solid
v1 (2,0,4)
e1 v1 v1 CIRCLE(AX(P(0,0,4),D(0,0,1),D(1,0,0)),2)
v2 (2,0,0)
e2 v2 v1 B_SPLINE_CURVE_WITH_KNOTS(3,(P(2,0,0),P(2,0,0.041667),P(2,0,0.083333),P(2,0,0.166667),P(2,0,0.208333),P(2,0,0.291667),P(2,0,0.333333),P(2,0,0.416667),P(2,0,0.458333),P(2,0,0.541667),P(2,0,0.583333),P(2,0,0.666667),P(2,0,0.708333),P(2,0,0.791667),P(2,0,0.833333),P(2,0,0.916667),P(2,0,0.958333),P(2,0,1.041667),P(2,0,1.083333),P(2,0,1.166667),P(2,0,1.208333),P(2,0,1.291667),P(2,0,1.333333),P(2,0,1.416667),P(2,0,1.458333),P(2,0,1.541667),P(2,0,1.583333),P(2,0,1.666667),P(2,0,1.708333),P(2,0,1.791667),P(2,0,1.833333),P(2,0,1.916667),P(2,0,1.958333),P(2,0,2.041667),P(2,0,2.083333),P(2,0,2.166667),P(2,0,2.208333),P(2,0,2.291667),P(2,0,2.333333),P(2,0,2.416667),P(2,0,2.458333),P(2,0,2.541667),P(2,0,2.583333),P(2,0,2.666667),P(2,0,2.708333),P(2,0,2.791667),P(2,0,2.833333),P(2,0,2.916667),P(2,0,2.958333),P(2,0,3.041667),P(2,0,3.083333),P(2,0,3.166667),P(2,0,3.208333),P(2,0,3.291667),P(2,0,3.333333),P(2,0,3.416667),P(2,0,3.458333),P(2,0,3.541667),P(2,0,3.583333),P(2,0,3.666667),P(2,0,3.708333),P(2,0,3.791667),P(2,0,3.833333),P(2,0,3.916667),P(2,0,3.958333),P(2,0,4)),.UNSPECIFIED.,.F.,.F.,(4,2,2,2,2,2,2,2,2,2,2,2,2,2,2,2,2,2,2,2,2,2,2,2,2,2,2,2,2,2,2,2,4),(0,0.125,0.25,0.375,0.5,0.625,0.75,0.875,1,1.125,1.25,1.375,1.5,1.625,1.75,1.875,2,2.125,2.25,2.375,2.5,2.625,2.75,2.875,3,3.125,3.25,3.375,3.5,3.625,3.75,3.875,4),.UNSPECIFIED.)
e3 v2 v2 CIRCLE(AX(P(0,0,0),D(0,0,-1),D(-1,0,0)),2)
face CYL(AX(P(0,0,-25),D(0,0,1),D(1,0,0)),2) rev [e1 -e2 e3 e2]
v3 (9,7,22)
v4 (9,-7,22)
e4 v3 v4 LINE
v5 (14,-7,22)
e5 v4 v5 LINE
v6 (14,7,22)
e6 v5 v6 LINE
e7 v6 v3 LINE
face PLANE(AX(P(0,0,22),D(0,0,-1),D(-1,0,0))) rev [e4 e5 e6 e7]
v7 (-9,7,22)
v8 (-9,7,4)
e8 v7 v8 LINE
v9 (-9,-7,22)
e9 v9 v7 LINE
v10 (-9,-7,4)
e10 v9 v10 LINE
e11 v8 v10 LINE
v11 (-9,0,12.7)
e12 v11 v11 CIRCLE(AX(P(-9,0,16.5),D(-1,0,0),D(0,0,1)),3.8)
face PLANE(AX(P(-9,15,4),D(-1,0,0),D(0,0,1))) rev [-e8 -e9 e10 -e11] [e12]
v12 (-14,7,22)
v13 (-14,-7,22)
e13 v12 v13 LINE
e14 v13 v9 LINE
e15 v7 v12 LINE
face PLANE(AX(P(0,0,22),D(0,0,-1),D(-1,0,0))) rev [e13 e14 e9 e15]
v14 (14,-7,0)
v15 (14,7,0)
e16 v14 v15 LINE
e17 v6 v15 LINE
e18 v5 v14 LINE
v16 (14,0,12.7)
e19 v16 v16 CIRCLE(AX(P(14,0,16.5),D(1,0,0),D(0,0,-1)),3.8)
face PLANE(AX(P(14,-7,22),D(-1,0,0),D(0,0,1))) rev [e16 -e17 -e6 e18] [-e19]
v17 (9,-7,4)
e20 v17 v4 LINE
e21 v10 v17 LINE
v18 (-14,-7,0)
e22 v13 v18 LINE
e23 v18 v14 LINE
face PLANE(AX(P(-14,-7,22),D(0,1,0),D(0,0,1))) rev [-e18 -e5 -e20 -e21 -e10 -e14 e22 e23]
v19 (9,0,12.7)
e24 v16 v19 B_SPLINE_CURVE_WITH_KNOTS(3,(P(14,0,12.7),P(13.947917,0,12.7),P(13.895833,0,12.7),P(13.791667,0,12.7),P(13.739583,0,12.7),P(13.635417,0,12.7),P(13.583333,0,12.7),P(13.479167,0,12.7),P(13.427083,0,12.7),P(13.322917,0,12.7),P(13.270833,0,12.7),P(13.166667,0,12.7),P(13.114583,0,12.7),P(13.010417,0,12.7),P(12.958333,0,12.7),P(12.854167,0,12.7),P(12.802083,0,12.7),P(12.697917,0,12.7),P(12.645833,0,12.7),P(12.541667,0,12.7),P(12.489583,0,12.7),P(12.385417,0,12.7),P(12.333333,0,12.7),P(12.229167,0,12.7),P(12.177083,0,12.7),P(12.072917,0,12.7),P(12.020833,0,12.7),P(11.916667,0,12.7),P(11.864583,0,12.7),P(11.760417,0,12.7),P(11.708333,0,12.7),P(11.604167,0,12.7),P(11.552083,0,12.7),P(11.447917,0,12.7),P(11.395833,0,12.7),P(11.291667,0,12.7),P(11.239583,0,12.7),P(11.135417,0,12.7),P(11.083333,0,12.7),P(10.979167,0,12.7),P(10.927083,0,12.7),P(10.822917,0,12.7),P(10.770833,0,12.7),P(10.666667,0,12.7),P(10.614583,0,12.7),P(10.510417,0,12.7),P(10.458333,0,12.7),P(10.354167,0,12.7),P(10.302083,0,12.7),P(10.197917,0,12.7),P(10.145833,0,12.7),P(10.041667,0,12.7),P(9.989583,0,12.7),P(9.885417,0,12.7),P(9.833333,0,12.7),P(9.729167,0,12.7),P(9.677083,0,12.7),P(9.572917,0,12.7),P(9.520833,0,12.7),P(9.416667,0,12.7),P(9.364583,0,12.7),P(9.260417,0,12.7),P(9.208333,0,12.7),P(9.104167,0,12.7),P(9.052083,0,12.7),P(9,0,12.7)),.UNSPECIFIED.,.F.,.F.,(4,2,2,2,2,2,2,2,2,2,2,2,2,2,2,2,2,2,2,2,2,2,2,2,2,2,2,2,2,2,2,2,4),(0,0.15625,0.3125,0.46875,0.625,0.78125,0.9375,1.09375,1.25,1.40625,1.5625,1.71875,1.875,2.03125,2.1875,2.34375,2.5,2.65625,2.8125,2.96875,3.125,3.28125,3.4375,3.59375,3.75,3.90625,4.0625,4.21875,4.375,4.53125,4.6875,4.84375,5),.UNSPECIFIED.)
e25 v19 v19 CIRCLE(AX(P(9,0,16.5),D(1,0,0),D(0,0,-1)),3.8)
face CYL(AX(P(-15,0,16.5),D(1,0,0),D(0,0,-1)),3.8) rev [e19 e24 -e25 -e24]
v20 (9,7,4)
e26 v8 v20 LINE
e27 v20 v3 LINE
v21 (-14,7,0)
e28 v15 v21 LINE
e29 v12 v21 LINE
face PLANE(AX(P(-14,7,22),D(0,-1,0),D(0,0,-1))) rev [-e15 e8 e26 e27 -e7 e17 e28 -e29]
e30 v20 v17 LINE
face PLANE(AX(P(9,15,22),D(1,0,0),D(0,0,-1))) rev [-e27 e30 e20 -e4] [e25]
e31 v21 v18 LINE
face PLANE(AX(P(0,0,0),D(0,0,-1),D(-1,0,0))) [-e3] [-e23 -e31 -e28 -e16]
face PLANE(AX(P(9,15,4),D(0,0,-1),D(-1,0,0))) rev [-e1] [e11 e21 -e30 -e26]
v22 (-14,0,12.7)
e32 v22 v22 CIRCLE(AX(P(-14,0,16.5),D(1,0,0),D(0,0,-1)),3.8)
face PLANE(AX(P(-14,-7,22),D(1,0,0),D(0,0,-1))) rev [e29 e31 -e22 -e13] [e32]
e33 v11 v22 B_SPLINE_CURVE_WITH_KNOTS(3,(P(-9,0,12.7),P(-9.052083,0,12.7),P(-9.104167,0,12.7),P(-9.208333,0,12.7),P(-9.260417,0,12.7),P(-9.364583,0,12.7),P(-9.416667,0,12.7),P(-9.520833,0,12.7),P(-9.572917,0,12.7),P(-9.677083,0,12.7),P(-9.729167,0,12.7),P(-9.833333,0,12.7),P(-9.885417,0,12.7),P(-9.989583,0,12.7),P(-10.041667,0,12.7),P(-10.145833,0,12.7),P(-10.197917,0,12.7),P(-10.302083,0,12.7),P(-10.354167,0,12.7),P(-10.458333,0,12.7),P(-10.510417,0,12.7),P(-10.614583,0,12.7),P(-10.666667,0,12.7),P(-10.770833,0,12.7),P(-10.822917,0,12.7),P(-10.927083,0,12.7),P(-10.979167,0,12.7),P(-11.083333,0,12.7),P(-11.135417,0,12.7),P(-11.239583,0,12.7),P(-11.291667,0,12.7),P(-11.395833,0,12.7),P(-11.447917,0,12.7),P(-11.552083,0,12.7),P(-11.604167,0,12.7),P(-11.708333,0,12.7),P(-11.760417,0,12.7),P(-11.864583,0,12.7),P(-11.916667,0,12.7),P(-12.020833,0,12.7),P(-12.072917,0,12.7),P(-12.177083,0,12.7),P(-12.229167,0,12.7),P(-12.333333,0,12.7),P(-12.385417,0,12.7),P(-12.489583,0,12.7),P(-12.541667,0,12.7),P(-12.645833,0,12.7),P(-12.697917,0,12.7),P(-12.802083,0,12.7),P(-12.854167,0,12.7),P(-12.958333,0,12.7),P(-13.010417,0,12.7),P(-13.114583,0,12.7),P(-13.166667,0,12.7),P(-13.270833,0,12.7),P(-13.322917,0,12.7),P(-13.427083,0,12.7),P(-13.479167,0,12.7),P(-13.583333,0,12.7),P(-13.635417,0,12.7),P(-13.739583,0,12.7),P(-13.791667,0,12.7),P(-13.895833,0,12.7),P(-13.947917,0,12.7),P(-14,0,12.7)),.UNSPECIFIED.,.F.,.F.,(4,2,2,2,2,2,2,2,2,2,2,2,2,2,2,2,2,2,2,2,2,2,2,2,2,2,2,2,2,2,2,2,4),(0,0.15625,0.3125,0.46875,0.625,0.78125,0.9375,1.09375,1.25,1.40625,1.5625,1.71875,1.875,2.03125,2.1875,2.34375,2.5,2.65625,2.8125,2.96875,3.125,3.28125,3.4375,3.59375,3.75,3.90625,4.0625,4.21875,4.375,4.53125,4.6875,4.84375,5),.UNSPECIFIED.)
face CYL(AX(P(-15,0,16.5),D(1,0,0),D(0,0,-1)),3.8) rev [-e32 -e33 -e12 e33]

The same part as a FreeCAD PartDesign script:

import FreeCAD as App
import Part
import Sketcher
from FreeCAD import Vector
Q = App.Units.Quantity


def add_polygon(sketch, points):
    """Adds a closed chain of lines whose ends are joined by coincident constraints."""
    first, n = sketch.GeometryCount, len(points)
    for a, b in zip(points, points[1:] + points[:1]):
        sketch.addGeometry(Part.LineSegment(App.Vector(*a, 0), App.Vector(*b, 0)), False)
    for i in range(n):
        sketch.addConstraint(Sketcher.Constraint("Coincident", first + i, 2, first + (i + 1) % n, 1))

doc = App.newDocument("Part")
body = doc.addObject("PartDesign::Body", "Body")

sketch1 = body.newObject("Sketcher::SketchObject", "Sketch")
sketch1.AttachmentSupport = (doc.getObject("XY_Plane"), [""])
sketch1.MapMode = "FlatFace"
add_polygon(sketch1, [(-14, 7), (-14, -7), (14, -7), (14, 7)])
sketch1.addConstraint([
    Sketcher.Constraint("Vertical", 0),
    Sketcher.Constraint("Horizontal", 1),
    Sketcher.Constraint("Vertical", 2),
    Sketcher.Constraint("Horizontal", 3),
    Sketcher.Constraint("Symmetric", 0, 2, 2, 2, -1, 1),
    Sketcher.Constraint("DistanceX", 1, 1, 1, 2, Q("28 mm")),
    Sketcher.Constraint("DistanceY", 0, 2, 0, 1, Q("14 mm")),
])
pad1 = body.newObject("PartDesign::Pad", "Pad")
pad1.Profile = sketch1
pad1.Length = 22

sketch2 = body.newObject("Sketcher::SketchObject", "Sketch001")
sketch2.AttachmentSupport = (doc.getObject("XZ_Plane"), [""])
sketch2.MapMode = "FlatFace"
sketch2.AttachmentOffset = App.Placement(Vector(0, 0, 7), App.Rotation())
add_polygon(sketch2, [(-9, 22), (-9, 4), (9, 4), (9, 22)])
sketch2.addConstraint([
    Sketcher.Constraint("Vertical", 0),
    Sketcher.Constraint("Horizontal", 1),
    Sketcher.Constraint("Vertical", 2),
    Sketcher.Constraint("Horizontal", 3),
    Sketcher.Constraint("Equal", 3, 0),
    Sketcher.Constraint("DistanceX", 1, 1, 1, 2, Q("18 mm")),
    Sketcher.Constraint("DistanceX", 0, 2, -1, 1, Q("9 mm")),
    Sketcher.Constraint("DistanceY", -1, 1, 0, 2, Q("4 mm")),
])
pocket1 = body.newObject("PartDesign::Pocket", "Pocket")
pocket1.Profile = sketch2
pocket1.Length = 22

sketch3 = body.newObject("Sketcher::SketchObject", "Sketch002")
sketch3.AttachmentSupport = (doc.getObject("YZ_Plane"), [""])
sketch3.MapMode = "FlatFace"
sketch3.AttachmentOffset = App.Placement(Vector(0, 0, 14), App.Rotation())
sketch3.addGeometry(Part.Circle(Vector(0, 16.5, 0), Vector(0, 0, 1), 3.8), False)
sketch3.addConstraint([
    Sketcher.Constraint("PointOnObject", 0, 3, -2),
    Sketcher.Constraint("Diameter", 0, Q("7.6 mm")),
    Sketcher.Constraint("DistanceY", -1, 1, 0, 3, Q("16.5 mm")),
])
pocket2 = body.newObject("PartDesign::Pocket", "Pocket001")
pocket2.Profile = sketch3
pocket2.Length = 29

sketch4 = body.newObject("Sketcher::SketchObject", "Sketch003")
sketch4.AttachmentSupport = (doc.getObject("XY_Plane"), [""])
sketch4.MapMode = "FlatFace"
sketch4.AttachmentOffset = App.Placement(Vector(0, 0, 4), App.Rotation())
sketch4.addGeometry(Part.Circle(Vector(0, 0, 0), Vector(0, 0, 1), 2), False)
sketch4.addConstraint([
    Sketcher.Constraint("Coincident", 0, 3, -1, 1),
    Sketcher.Constraint("Diameter", 0, Q("4 mm")),
])
pocket3 = body.newObject("PartDesign::Pocket", "Pocket002")
pocket3.Profile = sketch4
pocket3.Length = 29

doc.recompute()
